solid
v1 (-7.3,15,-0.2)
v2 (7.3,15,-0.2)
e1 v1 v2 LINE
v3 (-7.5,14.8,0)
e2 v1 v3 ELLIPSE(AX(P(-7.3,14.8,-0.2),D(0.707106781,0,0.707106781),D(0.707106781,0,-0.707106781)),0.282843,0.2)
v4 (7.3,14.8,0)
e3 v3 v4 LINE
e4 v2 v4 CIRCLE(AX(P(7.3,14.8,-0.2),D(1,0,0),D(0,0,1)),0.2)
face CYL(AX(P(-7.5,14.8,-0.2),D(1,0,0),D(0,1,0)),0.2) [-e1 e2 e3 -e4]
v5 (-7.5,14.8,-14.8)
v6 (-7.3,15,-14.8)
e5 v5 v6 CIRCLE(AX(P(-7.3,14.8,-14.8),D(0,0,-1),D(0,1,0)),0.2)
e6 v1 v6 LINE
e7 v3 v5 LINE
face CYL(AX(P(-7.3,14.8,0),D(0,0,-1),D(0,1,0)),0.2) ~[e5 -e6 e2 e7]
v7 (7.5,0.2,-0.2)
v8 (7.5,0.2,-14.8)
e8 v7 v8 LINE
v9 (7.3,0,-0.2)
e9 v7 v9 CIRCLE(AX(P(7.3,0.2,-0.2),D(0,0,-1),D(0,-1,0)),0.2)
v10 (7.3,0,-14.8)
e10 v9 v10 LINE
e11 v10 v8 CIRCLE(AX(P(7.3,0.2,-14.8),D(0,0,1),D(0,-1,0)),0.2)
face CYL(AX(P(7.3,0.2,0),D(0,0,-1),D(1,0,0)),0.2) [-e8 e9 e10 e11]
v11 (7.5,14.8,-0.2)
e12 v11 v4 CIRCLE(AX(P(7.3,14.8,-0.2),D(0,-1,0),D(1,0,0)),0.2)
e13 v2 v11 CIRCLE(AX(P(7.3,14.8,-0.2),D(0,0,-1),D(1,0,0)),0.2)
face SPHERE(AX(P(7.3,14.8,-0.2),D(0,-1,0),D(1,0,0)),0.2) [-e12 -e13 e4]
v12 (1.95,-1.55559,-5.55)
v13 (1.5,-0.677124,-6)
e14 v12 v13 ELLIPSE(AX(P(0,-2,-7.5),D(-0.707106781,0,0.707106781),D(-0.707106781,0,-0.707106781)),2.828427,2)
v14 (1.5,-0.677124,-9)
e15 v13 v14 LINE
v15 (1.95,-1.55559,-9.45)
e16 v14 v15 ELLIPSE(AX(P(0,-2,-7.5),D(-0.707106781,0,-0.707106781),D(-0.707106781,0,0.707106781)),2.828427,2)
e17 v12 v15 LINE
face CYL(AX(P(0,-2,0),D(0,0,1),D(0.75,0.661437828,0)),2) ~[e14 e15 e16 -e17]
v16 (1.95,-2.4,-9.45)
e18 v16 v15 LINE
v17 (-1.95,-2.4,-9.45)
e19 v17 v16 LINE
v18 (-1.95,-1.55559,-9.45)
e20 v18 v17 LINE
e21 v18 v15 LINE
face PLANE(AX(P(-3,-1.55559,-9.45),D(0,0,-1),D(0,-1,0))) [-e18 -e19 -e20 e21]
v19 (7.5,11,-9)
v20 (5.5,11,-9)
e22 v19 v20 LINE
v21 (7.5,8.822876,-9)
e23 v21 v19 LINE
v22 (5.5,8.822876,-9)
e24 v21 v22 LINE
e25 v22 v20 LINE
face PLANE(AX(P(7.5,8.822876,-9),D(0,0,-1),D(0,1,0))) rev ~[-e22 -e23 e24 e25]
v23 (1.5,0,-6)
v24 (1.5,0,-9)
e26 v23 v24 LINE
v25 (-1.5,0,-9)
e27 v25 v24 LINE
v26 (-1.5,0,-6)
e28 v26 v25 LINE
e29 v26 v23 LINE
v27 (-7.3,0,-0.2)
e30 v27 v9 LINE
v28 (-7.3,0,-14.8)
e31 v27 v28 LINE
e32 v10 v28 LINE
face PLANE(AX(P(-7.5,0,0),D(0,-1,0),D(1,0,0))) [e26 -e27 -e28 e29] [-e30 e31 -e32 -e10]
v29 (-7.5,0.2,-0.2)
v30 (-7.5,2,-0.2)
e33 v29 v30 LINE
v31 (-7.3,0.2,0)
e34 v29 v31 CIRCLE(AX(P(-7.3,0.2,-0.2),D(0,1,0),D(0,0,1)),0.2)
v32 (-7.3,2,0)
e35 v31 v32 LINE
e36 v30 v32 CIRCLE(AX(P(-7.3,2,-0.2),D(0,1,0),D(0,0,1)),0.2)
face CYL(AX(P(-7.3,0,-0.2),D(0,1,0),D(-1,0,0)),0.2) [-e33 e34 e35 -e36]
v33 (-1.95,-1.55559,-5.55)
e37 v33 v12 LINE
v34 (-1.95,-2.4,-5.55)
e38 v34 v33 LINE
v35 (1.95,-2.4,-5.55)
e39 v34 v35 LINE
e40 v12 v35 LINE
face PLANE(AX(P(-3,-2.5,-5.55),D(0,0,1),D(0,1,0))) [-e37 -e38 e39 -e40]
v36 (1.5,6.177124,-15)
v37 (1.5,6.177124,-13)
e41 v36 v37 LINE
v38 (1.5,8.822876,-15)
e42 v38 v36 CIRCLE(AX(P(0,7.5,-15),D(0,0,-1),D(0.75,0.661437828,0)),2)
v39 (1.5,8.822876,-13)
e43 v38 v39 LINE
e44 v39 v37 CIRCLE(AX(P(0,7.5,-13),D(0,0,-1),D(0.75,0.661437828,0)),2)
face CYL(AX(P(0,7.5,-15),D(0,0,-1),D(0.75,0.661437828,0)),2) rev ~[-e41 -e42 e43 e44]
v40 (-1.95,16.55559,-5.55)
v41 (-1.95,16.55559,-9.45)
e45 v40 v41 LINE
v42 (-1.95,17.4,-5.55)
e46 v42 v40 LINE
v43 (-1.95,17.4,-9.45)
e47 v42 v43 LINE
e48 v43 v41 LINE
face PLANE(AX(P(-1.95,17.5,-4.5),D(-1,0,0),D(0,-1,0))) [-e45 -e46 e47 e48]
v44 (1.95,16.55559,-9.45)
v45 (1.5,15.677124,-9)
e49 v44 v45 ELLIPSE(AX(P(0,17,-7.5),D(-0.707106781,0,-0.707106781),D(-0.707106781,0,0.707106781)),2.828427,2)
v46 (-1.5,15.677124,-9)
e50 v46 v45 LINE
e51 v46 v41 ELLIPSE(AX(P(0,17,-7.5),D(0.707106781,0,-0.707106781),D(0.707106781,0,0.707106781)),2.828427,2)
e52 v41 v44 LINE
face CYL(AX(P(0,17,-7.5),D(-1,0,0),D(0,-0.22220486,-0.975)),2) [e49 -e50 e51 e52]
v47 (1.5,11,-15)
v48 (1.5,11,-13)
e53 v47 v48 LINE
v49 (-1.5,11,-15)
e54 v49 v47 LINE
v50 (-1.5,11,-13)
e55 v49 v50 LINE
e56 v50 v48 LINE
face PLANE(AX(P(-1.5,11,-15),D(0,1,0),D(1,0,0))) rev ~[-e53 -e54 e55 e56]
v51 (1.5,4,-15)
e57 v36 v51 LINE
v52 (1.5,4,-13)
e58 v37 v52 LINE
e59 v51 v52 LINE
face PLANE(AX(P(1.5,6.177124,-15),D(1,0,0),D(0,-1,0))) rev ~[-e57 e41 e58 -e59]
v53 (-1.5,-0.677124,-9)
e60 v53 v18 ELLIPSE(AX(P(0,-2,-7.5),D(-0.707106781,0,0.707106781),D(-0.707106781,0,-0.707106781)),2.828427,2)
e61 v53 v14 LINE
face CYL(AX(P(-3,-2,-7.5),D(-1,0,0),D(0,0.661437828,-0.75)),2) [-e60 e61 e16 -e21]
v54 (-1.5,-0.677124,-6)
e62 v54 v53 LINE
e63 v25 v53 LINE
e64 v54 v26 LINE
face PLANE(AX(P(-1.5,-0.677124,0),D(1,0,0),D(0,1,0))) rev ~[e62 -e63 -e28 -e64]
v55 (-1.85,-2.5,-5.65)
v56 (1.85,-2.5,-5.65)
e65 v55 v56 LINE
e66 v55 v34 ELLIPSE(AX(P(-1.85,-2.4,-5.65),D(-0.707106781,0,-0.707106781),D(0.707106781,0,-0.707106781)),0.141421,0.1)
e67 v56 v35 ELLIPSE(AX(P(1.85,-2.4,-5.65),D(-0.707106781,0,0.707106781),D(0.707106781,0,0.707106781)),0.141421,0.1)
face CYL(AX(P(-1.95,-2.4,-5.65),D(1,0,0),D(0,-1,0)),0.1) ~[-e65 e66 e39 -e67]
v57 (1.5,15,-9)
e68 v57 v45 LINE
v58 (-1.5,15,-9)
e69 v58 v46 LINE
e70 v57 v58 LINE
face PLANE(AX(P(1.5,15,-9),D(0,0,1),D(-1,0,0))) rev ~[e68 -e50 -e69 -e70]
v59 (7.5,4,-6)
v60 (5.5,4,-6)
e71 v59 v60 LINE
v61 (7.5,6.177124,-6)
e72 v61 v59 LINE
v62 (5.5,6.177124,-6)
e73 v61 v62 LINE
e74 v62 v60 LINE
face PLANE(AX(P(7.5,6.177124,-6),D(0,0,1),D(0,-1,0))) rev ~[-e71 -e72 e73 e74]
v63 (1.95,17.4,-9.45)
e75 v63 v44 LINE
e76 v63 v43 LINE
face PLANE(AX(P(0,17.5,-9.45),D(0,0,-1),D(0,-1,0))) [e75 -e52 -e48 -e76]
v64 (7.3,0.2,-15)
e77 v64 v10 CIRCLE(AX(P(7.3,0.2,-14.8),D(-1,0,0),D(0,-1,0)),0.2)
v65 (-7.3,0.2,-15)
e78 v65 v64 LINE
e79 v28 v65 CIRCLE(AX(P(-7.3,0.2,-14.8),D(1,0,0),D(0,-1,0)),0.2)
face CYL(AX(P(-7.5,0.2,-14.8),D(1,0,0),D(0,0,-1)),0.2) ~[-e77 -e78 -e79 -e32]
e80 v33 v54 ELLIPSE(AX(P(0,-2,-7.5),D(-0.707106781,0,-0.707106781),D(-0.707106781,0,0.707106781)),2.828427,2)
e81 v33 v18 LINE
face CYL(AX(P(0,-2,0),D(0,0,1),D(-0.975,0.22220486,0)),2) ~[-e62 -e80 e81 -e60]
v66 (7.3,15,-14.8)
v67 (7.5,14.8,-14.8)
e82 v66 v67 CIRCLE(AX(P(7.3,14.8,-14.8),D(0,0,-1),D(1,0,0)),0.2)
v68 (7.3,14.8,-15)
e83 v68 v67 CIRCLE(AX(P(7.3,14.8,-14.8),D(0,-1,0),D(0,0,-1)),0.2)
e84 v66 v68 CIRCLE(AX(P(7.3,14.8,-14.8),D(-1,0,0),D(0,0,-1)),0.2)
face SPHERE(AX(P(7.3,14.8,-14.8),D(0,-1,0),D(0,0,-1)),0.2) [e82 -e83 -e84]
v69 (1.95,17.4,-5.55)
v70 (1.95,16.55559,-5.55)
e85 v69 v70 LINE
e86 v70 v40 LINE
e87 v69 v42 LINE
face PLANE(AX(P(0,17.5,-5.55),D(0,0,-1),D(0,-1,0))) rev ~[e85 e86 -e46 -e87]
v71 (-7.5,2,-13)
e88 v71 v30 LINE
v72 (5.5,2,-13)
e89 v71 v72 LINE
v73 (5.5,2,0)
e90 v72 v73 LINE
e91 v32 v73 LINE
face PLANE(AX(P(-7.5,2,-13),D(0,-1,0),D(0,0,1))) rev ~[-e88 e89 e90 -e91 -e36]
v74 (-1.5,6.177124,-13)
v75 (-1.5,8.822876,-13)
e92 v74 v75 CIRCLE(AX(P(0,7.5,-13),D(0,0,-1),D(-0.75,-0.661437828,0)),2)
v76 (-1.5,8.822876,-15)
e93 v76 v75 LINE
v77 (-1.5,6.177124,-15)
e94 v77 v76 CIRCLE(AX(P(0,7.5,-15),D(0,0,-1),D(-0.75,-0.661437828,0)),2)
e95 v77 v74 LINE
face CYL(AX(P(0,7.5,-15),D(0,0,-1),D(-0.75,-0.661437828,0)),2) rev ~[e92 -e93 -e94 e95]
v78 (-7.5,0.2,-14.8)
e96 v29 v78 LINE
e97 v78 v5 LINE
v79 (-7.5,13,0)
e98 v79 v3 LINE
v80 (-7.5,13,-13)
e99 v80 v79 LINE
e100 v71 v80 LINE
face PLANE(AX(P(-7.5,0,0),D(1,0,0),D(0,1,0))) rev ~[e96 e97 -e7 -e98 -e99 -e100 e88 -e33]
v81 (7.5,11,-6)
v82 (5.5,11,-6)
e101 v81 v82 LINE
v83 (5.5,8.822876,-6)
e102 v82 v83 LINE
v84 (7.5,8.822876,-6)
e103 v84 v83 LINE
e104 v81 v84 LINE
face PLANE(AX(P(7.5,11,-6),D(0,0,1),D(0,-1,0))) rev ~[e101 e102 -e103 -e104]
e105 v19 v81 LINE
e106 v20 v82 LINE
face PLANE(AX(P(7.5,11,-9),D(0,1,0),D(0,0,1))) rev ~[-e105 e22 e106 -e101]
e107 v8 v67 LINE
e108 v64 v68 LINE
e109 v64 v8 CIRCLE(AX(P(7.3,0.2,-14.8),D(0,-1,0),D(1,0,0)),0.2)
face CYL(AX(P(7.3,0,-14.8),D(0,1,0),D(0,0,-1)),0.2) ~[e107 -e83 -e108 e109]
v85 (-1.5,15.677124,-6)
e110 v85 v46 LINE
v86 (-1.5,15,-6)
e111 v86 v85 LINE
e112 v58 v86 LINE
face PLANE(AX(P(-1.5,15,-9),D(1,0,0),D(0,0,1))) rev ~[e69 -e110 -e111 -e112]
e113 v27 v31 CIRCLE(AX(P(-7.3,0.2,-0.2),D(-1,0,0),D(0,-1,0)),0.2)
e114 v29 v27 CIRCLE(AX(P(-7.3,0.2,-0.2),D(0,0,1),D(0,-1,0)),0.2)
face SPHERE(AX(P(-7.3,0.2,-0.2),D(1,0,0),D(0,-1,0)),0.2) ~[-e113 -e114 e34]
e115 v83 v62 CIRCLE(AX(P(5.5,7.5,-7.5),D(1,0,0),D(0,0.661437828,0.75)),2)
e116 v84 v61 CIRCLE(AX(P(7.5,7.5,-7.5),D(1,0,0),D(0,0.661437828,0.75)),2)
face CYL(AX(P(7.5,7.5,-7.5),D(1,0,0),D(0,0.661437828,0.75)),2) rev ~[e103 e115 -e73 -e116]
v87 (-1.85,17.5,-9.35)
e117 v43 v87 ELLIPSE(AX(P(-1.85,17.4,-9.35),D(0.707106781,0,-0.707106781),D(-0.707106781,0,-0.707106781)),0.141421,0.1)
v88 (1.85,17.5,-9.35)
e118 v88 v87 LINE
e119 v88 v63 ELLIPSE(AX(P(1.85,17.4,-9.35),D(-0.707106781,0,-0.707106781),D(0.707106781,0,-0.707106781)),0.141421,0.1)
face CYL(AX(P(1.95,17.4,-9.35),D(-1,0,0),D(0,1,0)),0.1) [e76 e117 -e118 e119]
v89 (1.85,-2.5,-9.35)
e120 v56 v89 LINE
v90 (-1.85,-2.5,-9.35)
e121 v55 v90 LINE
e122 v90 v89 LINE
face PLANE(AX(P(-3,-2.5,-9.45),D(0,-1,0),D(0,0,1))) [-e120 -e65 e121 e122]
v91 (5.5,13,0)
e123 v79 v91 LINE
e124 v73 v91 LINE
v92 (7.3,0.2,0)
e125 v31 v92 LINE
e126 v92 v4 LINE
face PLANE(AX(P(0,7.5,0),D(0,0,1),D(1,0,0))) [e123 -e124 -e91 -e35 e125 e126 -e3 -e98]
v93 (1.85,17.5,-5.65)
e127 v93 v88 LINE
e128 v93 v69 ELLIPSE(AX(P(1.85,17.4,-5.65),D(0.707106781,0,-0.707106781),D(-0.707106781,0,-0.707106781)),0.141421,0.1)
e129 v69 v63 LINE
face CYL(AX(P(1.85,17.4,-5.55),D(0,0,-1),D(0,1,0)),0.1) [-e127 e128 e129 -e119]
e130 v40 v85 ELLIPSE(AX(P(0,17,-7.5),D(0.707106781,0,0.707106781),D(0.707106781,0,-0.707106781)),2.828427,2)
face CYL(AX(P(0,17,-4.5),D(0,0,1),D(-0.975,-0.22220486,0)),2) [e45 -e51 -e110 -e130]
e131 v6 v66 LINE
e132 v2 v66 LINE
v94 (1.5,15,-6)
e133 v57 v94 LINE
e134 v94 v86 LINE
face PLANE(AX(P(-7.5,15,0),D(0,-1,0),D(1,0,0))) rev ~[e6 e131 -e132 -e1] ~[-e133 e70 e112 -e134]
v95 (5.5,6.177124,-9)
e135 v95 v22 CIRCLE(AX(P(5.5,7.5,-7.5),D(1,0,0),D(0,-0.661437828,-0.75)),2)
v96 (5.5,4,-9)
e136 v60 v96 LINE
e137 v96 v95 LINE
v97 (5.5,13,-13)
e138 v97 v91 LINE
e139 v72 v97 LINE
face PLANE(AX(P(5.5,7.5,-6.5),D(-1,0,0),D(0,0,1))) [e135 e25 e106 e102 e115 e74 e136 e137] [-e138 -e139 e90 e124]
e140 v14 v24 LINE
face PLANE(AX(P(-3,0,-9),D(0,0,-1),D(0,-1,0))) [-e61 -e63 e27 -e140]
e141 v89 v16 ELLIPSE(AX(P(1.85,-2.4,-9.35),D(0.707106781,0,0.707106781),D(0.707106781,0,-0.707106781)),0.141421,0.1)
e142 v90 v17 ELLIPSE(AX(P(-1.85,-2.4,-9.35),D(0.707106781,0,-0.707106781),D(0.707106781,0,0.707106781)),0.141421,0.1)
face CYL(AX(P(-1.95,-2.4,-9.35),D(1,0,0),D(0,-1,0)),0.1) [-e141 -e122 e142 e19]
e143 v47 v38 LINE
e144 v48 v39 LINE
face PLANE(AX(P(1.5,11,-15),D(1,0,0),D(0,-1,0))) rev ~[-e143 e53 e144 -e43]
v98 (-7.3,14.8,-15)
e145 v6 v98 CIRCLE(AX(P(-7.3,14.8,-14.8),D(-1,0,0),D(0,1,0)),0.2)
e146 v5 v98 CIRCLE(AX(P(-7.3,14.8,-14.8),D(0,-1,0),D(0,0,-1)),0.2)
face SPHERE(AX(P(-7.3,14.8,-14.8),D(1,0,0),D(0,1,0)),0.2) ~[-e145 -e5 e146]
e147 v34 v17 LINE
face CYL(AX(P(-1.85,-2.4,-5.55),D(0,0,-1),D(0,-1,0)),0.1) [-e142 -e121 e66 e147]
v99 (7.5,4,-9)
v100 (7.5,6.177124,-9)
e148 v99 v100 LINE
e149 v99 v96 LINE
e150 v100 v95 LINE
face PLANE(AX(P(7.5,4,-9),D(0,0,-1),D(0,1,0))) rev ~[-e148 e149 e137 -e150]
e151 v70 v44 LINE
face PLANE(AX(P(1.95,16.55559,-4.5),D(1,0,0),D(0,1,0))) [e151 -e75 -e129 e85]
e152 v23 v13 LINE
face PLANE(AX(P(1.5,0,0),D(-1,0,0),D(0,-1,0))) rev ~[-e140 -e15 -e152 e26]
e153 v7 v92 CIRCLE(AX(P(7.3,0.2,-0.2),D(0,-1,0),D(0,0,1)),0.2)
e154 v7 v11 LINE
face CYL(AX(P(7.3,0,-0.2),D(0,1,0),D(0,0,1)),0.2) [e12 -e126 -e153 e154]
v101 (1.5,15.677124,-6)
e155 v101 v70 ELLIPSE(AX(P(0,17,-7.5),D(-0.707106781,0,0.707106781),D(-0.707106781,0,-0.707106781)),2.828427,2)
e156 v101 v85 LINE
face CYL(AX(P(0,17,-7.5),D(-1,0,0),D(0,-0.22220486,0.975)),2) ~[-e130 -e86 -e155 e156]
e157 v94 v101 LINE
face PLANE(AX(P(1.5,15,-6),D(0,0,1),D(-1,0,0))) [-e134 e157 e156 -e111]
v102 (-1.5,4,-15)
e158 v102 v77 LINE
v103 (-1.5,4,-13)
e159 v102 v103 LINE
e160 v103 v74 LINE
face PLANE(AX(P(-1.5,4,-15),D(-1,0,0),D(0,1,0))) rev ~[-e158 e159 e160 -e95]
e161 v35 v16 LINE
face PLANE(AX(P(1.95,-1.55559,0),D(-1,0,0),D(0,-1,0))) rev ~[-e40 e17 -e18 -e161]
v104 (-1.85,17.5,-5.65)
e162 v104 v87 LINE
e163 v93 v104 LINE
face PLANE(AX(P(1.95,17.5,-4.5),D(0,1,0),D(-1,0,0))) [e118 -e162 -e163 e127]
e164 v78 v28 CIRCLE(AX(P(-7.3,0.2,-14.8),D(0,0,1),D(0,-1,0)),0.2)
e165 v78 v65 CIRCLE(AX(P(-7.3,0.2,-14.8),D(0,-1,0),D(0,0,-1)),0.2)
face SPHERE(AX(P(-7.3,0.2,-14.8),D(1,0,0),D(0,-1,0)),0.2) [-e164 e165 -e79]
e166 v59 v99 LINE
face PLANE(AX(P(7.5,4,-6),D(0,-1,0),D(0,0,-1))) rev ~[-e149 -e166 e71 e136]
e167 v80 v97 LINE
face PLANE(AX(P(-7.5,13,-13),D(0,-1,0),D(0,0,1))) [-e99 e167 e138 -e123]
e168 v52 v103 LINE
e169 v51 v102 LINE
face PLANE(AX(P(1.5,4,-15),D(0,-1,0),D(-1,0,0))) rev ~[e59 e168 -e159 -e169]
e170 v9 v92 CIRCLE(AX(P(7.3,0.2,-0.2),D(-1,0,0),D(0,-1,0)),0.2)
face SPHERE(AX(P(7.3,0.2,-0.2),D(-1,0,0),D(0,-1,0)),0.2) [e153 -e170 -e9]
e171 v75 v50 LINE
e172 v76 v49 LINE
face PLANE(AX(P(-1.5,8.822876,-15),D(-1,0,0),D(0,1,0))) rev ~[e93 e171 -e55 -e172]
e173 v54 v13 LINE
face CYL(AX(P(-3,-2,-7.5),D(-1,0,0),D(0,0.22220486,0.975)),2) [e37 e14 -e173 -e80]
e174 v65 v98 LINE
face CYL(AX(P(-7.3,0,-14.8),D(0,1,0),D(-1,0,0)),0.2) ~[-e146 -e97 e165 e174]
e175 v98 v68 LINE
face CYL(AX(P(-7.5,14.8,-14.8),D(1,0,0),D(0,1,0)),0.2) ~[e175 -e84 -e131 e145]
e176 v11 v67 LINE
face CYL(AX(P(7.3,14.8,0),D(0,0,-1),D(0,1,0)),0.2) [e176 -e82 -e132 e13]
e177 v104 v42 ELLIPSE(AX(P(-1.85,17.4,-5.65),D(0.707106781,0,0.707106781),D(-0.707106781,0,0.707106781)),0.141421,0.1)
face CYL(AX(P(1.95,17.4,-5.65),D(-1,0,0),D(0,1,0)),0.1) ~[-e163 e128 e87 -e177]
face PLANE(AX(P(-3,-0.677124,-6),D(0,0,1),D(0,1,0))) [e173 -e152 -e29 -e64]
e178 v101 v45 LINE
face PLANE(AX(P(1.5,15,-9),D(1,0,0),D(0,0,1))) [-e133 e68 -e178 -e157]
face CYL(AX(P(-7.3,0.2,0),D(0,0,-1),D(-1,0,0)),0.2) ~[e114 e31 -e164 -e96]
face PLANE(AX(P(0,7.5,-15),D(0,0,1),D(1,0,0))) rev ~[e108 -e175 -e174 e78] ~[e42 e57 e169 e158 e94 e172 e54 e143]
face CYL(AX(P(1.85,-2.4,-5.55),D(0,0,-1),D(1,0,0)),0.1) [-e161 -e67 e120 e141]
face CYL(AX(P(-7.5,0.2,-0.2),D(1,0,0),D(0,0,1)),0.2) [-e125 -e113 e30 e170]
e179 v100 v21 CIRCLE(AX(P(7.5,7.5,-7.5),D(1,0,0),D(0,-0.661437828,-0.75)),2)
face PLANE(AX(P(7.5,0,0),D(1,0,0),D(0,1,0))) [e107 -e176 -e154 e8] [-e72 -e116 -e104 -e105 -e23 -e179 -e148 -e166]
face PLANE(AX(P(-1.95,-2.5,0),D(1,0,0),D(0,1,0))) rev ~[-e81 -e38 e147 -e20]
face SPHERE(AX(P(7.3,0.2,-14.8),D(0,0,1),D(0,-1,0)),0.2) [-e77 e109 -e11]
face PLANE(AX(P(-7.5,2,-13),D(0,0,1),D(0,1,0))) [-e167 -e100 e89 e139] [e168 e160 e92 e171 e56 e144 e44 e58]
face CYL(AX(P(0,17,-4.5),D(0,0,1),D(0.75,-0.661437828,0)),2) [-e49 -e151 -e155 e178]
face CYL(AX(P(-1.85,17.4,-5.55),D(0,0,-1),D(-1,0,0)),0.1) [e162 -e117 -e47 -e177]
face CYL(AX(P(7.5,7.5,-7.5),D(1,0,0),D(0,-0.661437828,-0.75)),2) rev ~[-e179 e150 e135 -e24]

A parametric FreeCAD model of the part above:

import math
import FreeCAD as App
import Part
import Sketcher

V = App.Vector


def edges_at(feature, points):
    """Names of the edges that pass closest to the given points."""
    edges = feature.Shape.Edges
    near = lambda p: min(range(len(edges)), key=lambda i: edges[i].distToShape(Part.Vertex(*p))[0])
    return sorted({f"Edge{near(p) + 1}" for p in points})


def add_polygon(sketch, points):
    """Adds a closed chain of lines whose ends are joined by coincident constraints."""
    first, n = sketch.GeometryCount, len(points)
    for a, b in zip(points, points[1:] + points[:1]):
        sketch.addGeometry(Part.LineSegment(App.Vector(*a, 0), App.Vector(*b, 0)), False)
    for i in range(n):
        sketch.addConstraint(Sketcher.Constraint("Coincident", first + i, 2, first + (i + 1) % n, 1))

doc = App.newDocument("Part")
body = doc.addObject("PartDesign::Body", "Body")

sketch1 = doc.addObject("Sketcher::SketchObject", "Sketch")
body.addObject(sketch1)
sketch1.AttachmentSupport = (doc.XY_Plane, [""])
sketch1.MapMode = "FlatFace"
add_polygon(sketch1, [(-8, 15), (-8, 0), (8, 0), (8, 15)])
sketch1.addConstraint(Sketcher.Constraint("Vertical", 0))
sketch1.addConstraint(Sketcher.Constraint("Horizontal", 1))
sketch1.addConstraint(Sketcher.Constraint("Vertical", 2))
sketch1.addConstraint(Sketcher.Constraint("Horizontal", 3))
sketch1.addConstraint(Sketcher.Constraint("Symmetric", 0, 2, 1, 2, -1, 1))
sketch1.addConstraint(Sketcher.Constraint("Equal", 3, 0))
sketch1.addConstraint(Sketcher.Constraint("DistanceX", 1, 1, 1, 2, 15.0))
pad1 = doc.addObject("PartDesign::Pad", "Pad")
body.addObject(pad1)
pad1.Profile = sketch1
pad1.Length = 15
pad1.Reversed = True

sketch2 = doc.addObject("Sketcher::SketchObject", "Sketch001")
body.addObject(sketch2)
sketch2.AttachmentSupport = (doc.YZ_Plane, [""])
sketch2.MapMode = "FlatFace"
sketch2.AttachmentOffset = App.Placement(V(0, 0, -7.5), App.Rotation())
add_polygon(sketch2, [(13, -13), (2, -13), (2, 0), (13, 0)])
sketch2.addConstraint(Sketcher.Constraint("Horizontal", 0))
sketch2.addConstraint(Sketcher.Constraint("Vertical", 1))
sketch2.addConstraint(Sketcher.Constraint("Horizontal", 2))
sketch2.addConstraint(Sketcher.Constraint("Vertical", 3))
sketch2.addConstraint(Sketcher.Constraint("PointOnObject", 1, 2, -1))
sketch2.addConstraint(Sketcher.Constraint("DistanceX", 0, 2, 0, 1, 11.0))
sketch2.addConstraint(Sketcher.Constraint("DistanceY", 1, 1, 1, 2, 13.0))
sketch2.addConstraint(Sketcher.Constraint("DistanceX", -1, 1, 0, 2, 2.0))
pocket1 = doc.addObject("PartDesign::Pocket", "Pocket")
body.addObject(pocket1)
pocket1.Profile = sketch2
pocket1.Length = 13
pocket1.Reversed = True
body2 = doc.addObject("PartDesign::Body", "Body001")

sketch3 = doc.addObject("Sketcher::SketchObject", "Sketch002")
body2.addObject(sketch3)
sketch3.AttachmentSupport = (doc.getObject("XY_Plane001"), [""])
sketch3.MapMode = "FlatFace"
sketch3.AttachmentOffset = App.Placement(V(0, 0, -4.5), App.Rotation())
sketch3.addGeometry(Part.LineSegment(V(-1.5, 15.7, 0), V(1.5, 15.7, 0)), False)
sketch3.addGeometry(Part.ArcOfCircle(Part.Circle(V(0, 17, 0), V(0, 0, 1), 2), math.radians(-41), math.radians(-13)), False)
sketch3.addGeometry(Part.LineSegment(V(1.9, 16.6, 0), V(1.9, 17.5, 0)), False)
sketch3.addGeometry(Part.LineSegment(V(1.9, 17.5, 0), V(-1.9, 17.5, 0)), False)
sketch3.addGeometry(Part.LineSegment(V(-1.9, 17.5, 0), V(-1.9, 16.6, 0)), False)
sketch3.addGeometry(Part.ArcOfCircle(Part.Circle(V(0, 17, 0), V(0, 0, 1), 2), math.radians(-167), math.radians(-139)), False)
sketch3.addConstraint(Sketcher.Constraint("Coincident", 0, 2, 1, 1))
sketch3.addConstraint(Sketcher.Constraint("Coincident", 1, 2, 2, 1))
sketch3.addConstraint(Sketcher.Constraint("Coincident", 2, 2, 3, 1))
sketch3.addConstraint(Sketcher.Constraint("Coincident", 3, 2, 4, 1))
sketch3.addConstraint(Sketcher.Constraint("Coincident", 4, 2, 5, 1))
sketch3.addConstraint(Sketcher.Constraint("Coincident", 5, 2, 0, 1))
sketch3.addConstraint(Sketcher.Constraint("Horizontal", 0))
sketch3.addConstraint(Sketcher.Constraint("Vertical", 2))
sketch3.addConstraint(Sketcher.Constraint("Horizontal", 3))
sketch3.addConstraint(Sketcher.Constraint("Vertical", 4))
sketch3.addConstraint(Sketcher.Constraint("Coincident", 5, 3, 1, 3))
sketch3.addConstraint(Sketcher.Constraint("Equal", 1, 5))
sketch3.addConstraint(Sketcher.Constraint("Symmetric", 1, 2, 4, 2, -2))
sketch3.addConstraint(Sketcher.Constraint("Radius", 1, 2.0))
sketch3.addConstraint(Sketcher.Constraint("DistanceX", 0, 1, 0, 2, 3.0))
sketch3.addConstraint(Sketcher.Constraint("DistanceX", 3, 2, 3, 1, 3.9))
sketch3.addConstraint(Sketcher.Constraint("DistanceY", -1, 1, 1, 3, 17.0))
sketch3.addConstraint(Sketcher.Constraint("DistanceY", -1, 1, 2, 2, 17.5))
pad2 = doc.addObject("PartDesign::Pad", "Pad001")
body2.addObject(pad2)
pad2.Profile = sketch3
pad2.Length = 6
pad2.Reversed = True
body.AllowCompound = True
doc.recompute()

boolean = doc.addObject("PartDesign::Boolean", "Boolean")
body.addObject(boolean)
boolean.Type = "Fuse"
boolean.addObjects([body2])

sketch4 = doc.addObject("Sketcher::SketchObject", "Sketch003")
body.addObject(sketch4)
sketch4.AttachmentSupport = (doc.XZ_Plane, [""])
sketch4.MapMode = "FlatFace"
sketch4.AttachmentOffset = App.Placement(V(0, 0, -15), App.Rotation())
add_polygon(sketch4, [(1.5, -6), (1.5, -9), (-1.5, -9), (-1.5, -6)])
sketch4.addConstraint(Sketcher.Constraint("Vertical", 0))
sketch4.addConstraint(Sketcher.Constraint("Horizontal", 1))
sketch4.addConstraint(Sketcher.Constraint("Vertical", 2))
sketch4.addConstraint(Sketcher.Constraint("Horizontal", 3))
sketch4.addConstraint(Sketcher.Constraint("Equal", 3, 0))
sketch4.addConstraint(Sketcher.Constraint("DistanceX", 1, 2, 1, 1, 3.0))
sketch4.addConstraint(Sketcher.Constraint("DistanceY", 0, 2, -1, 1, 9.0))
sketch4.addConstraint(Sketcher.Constraint("DistanceX", -1, 1, 0, 2, 1.5))
pad3 = doc.addObject("PartDesign::Pad", "Pad002")
body.addObject(pad3)
pad3.Profile = sketch4
pad3.Length = 1
pad3.Reversed = True

sketch5 = doc.addObject("Sketcher::SketchObject", "Sketch004")
body.addObject(sketch5)
sketch5.AttachmentSupport = (doc.XY_Plane, [""])
sketch5.MapMode = "FlatFace"
sketch5.AttachmentOffset = App.Placement(V(0, 0, -15), App.Rotation())
sketch5.addGeometry(Part.LineSegment(V(1.5, 6.2, 0), V(1.5, 4, 0)), False)
sketch5.addGeometry(Part.LineSegment(V(1.5, 4, 0), V(-1.5, 4, 0)), False)
sketch5.addGeometry(Part.LineSegment(V(-1.5, 4, 0), V(-1.5, 6.2, 0)), False)
sketch5.addGeometry(Part.ArcOfCircle(Part.Circle(V(0, 7.5, 0), V(0, 0, 1), 2), math.radians(139), math.radians(221)), False)
sketch5.addGeometry(Part.LineSegment(V(-1.5, 8.8, 0), V(-1.5, 11, 0)), False)
sketch5.addGeometry(Part.LineSegment(V(-1.5, 11, 0), V(1.5, 11, 0)), False)
sketch5.addGeometry(Part.LineSegment(V(1.5, 11, 0), V(1.5, 8.8, 0)), False)
sketch5.addGeometry(Part.ArcOfCircle(Part.Circle(V(0, 7.5, 0), V(0, 0, 1), 2), math.radians(-41), math.radians(41)), False)
sketch5.addConstraint(Sketcher.Constraint("Coincident", 0, 2, 1, 1))
sketch5.addConstraint(Sketcher.Constraint("Coincident", 1, 2, 2, 1))
sketch5.addConstraint(Sketcher.Constraint("Coincident", 2, 2, 3, 2))
sketch5.addConstraint(Sketcher.Constraint("Coincident", 3, 1, 4, 1))
sketch5.addConstraint(Sketcher.Constraint("Coincident", 4, 2, 5, 1))
sketch5.addConstraint(Sketcher.Constraint("Coincident", 5, 2, 6, 1))
sketch5.addConstraint(Sketcher.Constraint("Coincident", 6, 2, 7, 2))
sketch5.addConstraint(Sketcher.Constraint("Coincident", 7, 1, 0, 1))
sketch5.addConstraint(Sketcher.Constraint("Vertical", 0))
sketch5.addConstraint(Sketcher.Constraint("Horizontal", 1))
sketch5.addConstraint(Sketcher.Constraint("Vertical", 2))
sketch5.addConstraint(Sketcher.Constraint("Vertical", 4))
sketch5.addConstraint(Sketcher.Constraint("Horizontal", 5))
sketch5.addConstraint(Sketcher.Constraint("Vertical", 6))
sketch5.addConstraint(Sketcher.Constraint("Coincident", 7, 3, 3, 3))
sketch5.addConstraint(Sketcher.Constraint("Equal", 3, 7))
sketch5.addConstraint(Sketcher.Constraint("Symmetric", 3, 1, 6, 2, -2))
sketch5.addConstraint(Sketcher.Constraint("Horizontal", 2, 2, 7, 1))
sketch5.addConstraint(Sketcher.Constraint("Vertical", 2, 2, 3, 1))
sketch5.addConstraint(Sketcher.Constraint("Equal", 2, 4))
sketch5.addConstraint(Sketcher.Constraint("Radius", 3, 2.0))
sketch5.addConstraint(Sketcher.Constraint("DistanceX", 1, 2, 1, 1, 3.0))
sketch5.addConstraint(Sketcher.Constraint("DistanceY", -1, 1, 0, 2, 4.0))
sketch5.addConstraint(Sketcher.Constraint("DistanceY", -1, 1, 4, 2, 11.0))
pocket2 = doc.addObject("PartDesign::Pocket", "Pocket001")
body.addObject(pocket2)
pocket2.Profile = sketch5
pocket2.Type = "UpToFirst"
pocket2.Reversed = True

sketch6 = doc.addObject("Sketcher::SketchObject", "Sketch005")
body.addObject(sketch6)
sketch6.AttachmentSupport = (doc.YZ_Plane, [""])
sketch6.MapMode = "FlatFace"
sketch6.AttachmentOffset = App.Placement(V(0, 0, 7.5), App.Rotation())
sketch6.addGeometry(Part.LineSegment(V(6.2, -6, 0), V(4, -6, 0)), False)
sketch6.addGeometry(Part.LineSegment(V(4, -6, 0), V(4, -9, 0)), False)
sketch6.addGeometry(Part.LineSegment(V(4, -9, 0), V(6.2, -9, 0)), False)
sketch6.addGeometry(Part.ArcOfCircle(Part.Circle(V(7.5, -7.5, 0), V(0, 0, 1), 2), math.radians(-131), math.radians(-49)), False)
sketch6.addGeometry(Part.LineSegment(V(8.8, -9, 0), V(11, -9, 0)), False)
sketch6.addGeometry(Part.LineSegment(V(11, -9, 0), V(11, -6, 0)), False)
sketch6.addGeometry(Part.LineSegment(V(11, -6, 0), V(8.8, -6, 0)), False)
sketch6.addGeometry(Part.ArcOfCircle(Part.Circle(V(7.5, -7.5, 0), V(0, 0, 1), 2), math.radians(49), math.radians(131)), False)
sketch6.addConstraint(Sketcher.Constraint("Coincident", 0, 2, 1, 1))
sketch6.addConstraint(Sketcher.Constraint("Coincident", 1, 2, 2, 1))
sketch6.addConstraint(Sketcher.Constraint("Coincident", 2, 2, 3, 1))
sketch6.addConstraint(Sketcher.Constraint("Coincident", 3, 2, 4, 1))
sketch6.addConstraint(Sketcher.Constraint("Coincident", 4, 2, 5, 1))
sketch6.addConstraint(Sketcher.Constraint("Coincident", 5, 2, 6, 1))
sketch6.addConstraint(Sketcher.Constraint("Coincident", 6, 2, 7, 1))
sketch6.addConstraint(Sketcher.Constraint("Coincident", 7, 2, 0, 1))
sketch6.addConstraint(Sketcher.Constraint("Horizontal", 0))
sketch6.addConstraint(Sketcher.Constraint("Vertical", 1))
sketch6.addConstraint(Sketcher.Constraint("Horizontal", 2))
sketch6.addConstraint(Sketcher.Constraint("Horizontal", 4))
sketch6.addConstraint(Sketcher.Constraint("Vertical", 5))
sketch6.addConstraint(Sketcher.Constraint("Horizontal", 6))
sketch6.addConstraint(Sketcher.Constraint("Coincident", 7, 3, 3, 3))
sketch6.addConstraint(Sketcher.Constraint("Equal", 3, 7))
sketch6.addConstraint(Sketcher.Constraint("Horizontal", 2, 2, 3, 2))
sketch6.addConstraint(Sketcher.Constraint("Horizontal", 0, 2, 5, 2))
sketch6.addConstraint(Sketcher.Constraint("Vertical", 3, 2, 6, 2))
sketch6.addConstraint(Sketcher.Constraint("Equal", 2, 4))
sketch6.addConstraint(Sketcher.Constraint("Radius", 3, 2.0))
sketch6.addConstraint(Sketcher.Constraint("DistanceY", 1, 2, 1, 1, 3.0))
sketch6.addConstraint(Sketcher.Constraint("DistanceX", -1, 1, 0, 2, 4.0))
sketch6.addConstraint(Sketcher.Constraint("DistanceY", 0, 2, -1, 1, 6.0))
sketch6.addConstraint(Sketcher.Constraint("DistanceX", -1, 1, 4, 2, 11.0))
pocket3 = doc.addObject("PartDesign::Pocket", "Pocket002")
body.addObject(pocket3)
pocket3.Profile = sketch6
pocket3.Type = "UpToFirst"

sketch7 = doc.addObject("Sketcher::SketchObject", "Sketch006")
body.addObject(sketch7)
sketch7.AttachmentSupport = (doc.YZ_Plane, [""])
sketch7.MapMode = "FlatFace"
sketch7.addGeometry(Part.LineSegment(V(16.6, -5.5, 0), V(17.5, -5.5, 0)), False)
sketch7.addGeometry(Part.LineSegment(V(17.5, -5.5, 0), V(17.5, -4.5, 0)), False)
sketch7.addGeometry(Part.LineSegment(V(17.5, -4.5, 0), V(15.7, -4.5, 0)), False)
sketch7.addGeometry(Part.LineSegment(V(15.7, -4.5, 0), V(15.7, -6, 0)), False)
sketch7.addGeometry(Part.ArcOfCircle(Part.Circle(V(17, -7.5, 0), V(0, 0, 1), 2), math.radians(103), math.radians(131)), False)
sketch7.addConstraint(Sketcher.Constraint("Coincident", 0, 2, 1, 1))
sketch7.addConstraint(Sketcher.Constraint("Coincident", 1, 2, 2, 1))
sketch7.addConstraint(Sketcher.Constraint("Coincident", 2, 2, 3, 1))
sketch7.addConstraint(Sketcher.Constraint("Coincident", 3, 2, 4, 2))
sketch7.addConstraint(Sketcher.Constraint("Coincident", 4, 1, 0, 1))
sketch7.addConstraint(Sketcher.Constraint("Horizontal", 0))
sketch7.addConstraint(Sketcher.Constraint("Vertical", 1))
sketch7.addConstraint(Sketcher.Constraint("Horizontal", 2))
sketch7.addConstraint(Sketcher.Constraint("Vertical", 3))
sketch7.addConstraint(Sketcher.Constraint("Radius", 4, 2.0))
sketch7.addConstraint(Sketcher.Constraint("DistanceY", 3, 2, 3, 1, 1.5))
sketch7.addConstraint(Sketcher.Constraint("DistanceX", -1, 1, 4, 3, 17.0))
sketch7.addConstraint(Sketcher.Constraint("DistanceY", 3, 2, -1, 1, 6.0))
sketch7.addConstraint(Sketcher.Constraint("DistanceY", 4, 3, 1, 2, 3.0))
sketch7.addConstraint(Sketcher.Constraint("DistanceY", 1, 1, 1, 2, 1.05))
sketch7.addConstraint(Sketcher.Constraint("DistanceX", -1, 1, 0, 2, 17.5))
pocket4 = doc.addObject("PartDesign::Pocket", "Pocket003")
body.addObject(pocket4)
pocket4.Profile = sketch7
pocket4.Type = "UpToFirst"

sketch8 = doc.addObject("Sketcher::SketchObject", "Sketch007")
body.addObject(sketch8)
sketch8.AttachmentSupport = (doc.YZ_Plane, [""])
sketch8.MapMode = "FlatFace"
sketch8.addGeometry(Part.LineSegment(V(17.5, -10.5, 0), V(17.5, -9.4, 0)), False)
sketch8.addGeometry(Part.LineSegment(V(17.5, -9.4, 0), V(16.6, -9.4, 0)), False)
sketch8.addGeometry(Part.ArcOfCircle(Part.Circle(V(17, -7.5, 0), V(0, 0, 1), 2), math.radians(-131), math.radians(-103)), False)
sketch8.addGeometry(Part.LineSegment(V(15.7, -9, 0), V(15.7, -10.5, 0)), False)
sketch8.addGeometry(Part.LineSegment(V(15.7, -10.5, 0), V(17.5, -10.5, 0)), False)
sketch8.addConstraint(Sketcher.Constraint("Coincident", 0, 2, 1, 1))
sketch8.addConstraint(Sketcher.Constraint("Coincident", 1, 2, 2, 2))
sketch8.addConstraint(Sketcher.Constraint("Coincident", 2, 1, 3, 1))
sketch8.addConstraint(Sketcher.Constraint("Coincident", 3, 2, 4, 1))
sketch8.addConstraint(Sketcher.Constraint("Coincident", 4, 2, 0, 1))
sketch8.addConstraint(Sketcher.Constraint("Vertical", 0))
sketch8.addConstraint(Sketcher.Constraint("Horizontal", 1))
sketch8.addConstraint(Sketcher.Constraint("Vertical", 3))
sketch8.addConstraint(Sketcher.Constraint("Horizontal", 4))
sketch8.addConstraint(Sketcher.Constraint("Radius", 2, 2.0))
sketch8.addConstraint(Sketcher.Constraint("DistanceY", 3, 2, 3, 1, 1.5))
sketch8.addConstraint(Sketcher.Constraint("DistanceX", -1, 1, 2, 3, 17.0))
sketch8.addConstraint(Sketcher.Constraint("DistanceY", 2, 1, -1, 1, 9.0))
sketch8.addConstraint(Sketcher.Constraint("DistanceY", 3, 2, 2, 3, 3.0))
sketch8.addConstraint(Sketcher.Constraint("DistanceY", 0, 1, 0, 2, 1.05))
sketch8.addConstraint(Sketcher.Constraint("DistanceX", -1, 1, 0, 2, 17.5))
pocket5 = doc.addObject("PartDesign::Pocket", "Pocket004")
body.addObject(pocket5)
pocket5.Profile = sketch8
pocket5.Type = "UpToFirst"

sketch9 = doc.addObject("Sketcher::SketchObject", "Sketch008")
body.addObject(sketch9)
sketch9.AttachmentSupport = (doc.YZ_Plane, [""])
sketch9.MapMode = "FlatFace"
sketch9.addGeometry(Part.LineSegment(V(16.6, -5.5, 0), V(17.5, -5.5, 0)), False)
sketch9.addGeometry(Part.LineSegment(V(17.5, -5.5, 0), V(17.5, -4.5, 0)), False)
sketch9.addGeometry(Part.LineSegment(V(17.5, -4.5, 0), V(15.7, -4.5, 0)), False)
sketch9.addGeometry(Part.LineSegment(V(15.7, -4.5, 0), V(15.7, -6, 0)), False)
sketch9.addGeometry(Part.ArcOfCircle(Part.Circle(V(17, -7.5, 0), V(0, 0, 1), 2), math.radians(103), math.radians(131)), False)
sketch9.addConstraint(Sketcher.Constraint("Coincident", 0, 2, 1, 1))
sketch9.addConstraint(Sketcher.Constraint("Coincident", 1, 2, 2, 1))
sketch9.addConstraint(Sketcher.Constraint("Coincident", 2, 2, 3, 1))
sketch9.addConstraint(Sketcher.Constraint("Coincident", 3, 2, 4, 2))
sketch9.addConstraint(Sketcher.Constraint("Coincident", 4, 1, 0, 1))
sketch9.addConstraint(Sketcher.Constraint("Horizontal", 0))
sketch9.addConstraint(Sketcher.Constraint("Vertical", 1))
sketch9.addConstraint(Sketcher.Constraint("Horizontal", 2))
sketch9.addConstraint(Sketcher.Constraint("Vertical", 3))
sketch9.addConstraint(Sketcher.Constraint("Radius", 4, 2.0))
sketch9.addConstraint(Sketcher.Constraint("DistanceY", 3, 2, 3, 1, 1.5))
sketch9.addConstraint(Sketcher.Constraint("DistanceX", -1, 1, 4, 3, 17.0))
sketch9.addConstraint(Sketcher.Constraint("DistanceY", 3, 2, -1, 1, 6.0))
sketch9.addConstraint(Sketcher.Constraint("DistanceY", 4, 3, 1, 2, 3.0))
sketch9.addConstraint(Sketcher.Constraint("DistanceY", 1, 1, 1, 2, 1.05))
sketch9.addConstraint(Sketcher.Constraint("DistanceX", -1, 1, 0, 2, 17.5))
pocket6 = doc.addObject("PartDesign::Pocket", "Pocket005")
body.addObject(pocket6)
pocket6.Profile = sketch9
pocket6.Type = "UpToFirst"
pocket6.Reversed = True

sketch10 = doc.addObject("Sketcher::SketchObject", "Sketch009")
body.addObject(sketch10)
sketch10.AttachmentSupport = (doc.YZ_Plane, [""])
sketch10.MapMode = "FlatFace"
sketch10.addGeometry(Part.LineSegment(V(17.5, -10.5, 0), V(17.5, -9.4, 0)), False)
sketch10.addGeometry(Part.LineSegment(V(17.5, -9.4, 0), V(16.6, -9.4, 0)), False)
sketch10.addGeometry(Part.ArcOfCircle(Part.Circle(V(17, -7.5, 0), V(0, 0, 1), 2), math.radians(-131), math.radians(-103)), False)
sketch10.addGeometry(Part.LineSegment(V(15.7, -9, 0), V(15.7, -10.5, 0)), False)
sketch10.addGeometry(Part.LineSegment(V(15.7, -10.5, 0), V(17.5, -10.5, 0)), False)
sketch10.addConstraint(Sketcher.Constraint("Coincident", 0, 2, 1, 1))
sketch10.addConstraint(Sketcher.Constraint("Coincident", 1, 2, 2, 2))
sketch10.addConstraint(Sketcher.Constraint("Coincident", 2, 1, 3, 1))
sketch10.addConstraint(Sketcher.Constraint("Coincident", 3, 2, 4, 1))
sketch10.addConstraint(Sketcher.Constraint("Coincident", 4, 2, 0, 1))
sketch10.addConstraint(Sketcher.Constraint("Vertical", 0))
sketch10.addConstraint(Sketcher.Constraint("Horizontal", 1))
sketch10.addConstraint(Sketcher.Constraint("Vertical", 3))
sketch10.addConstraint(Sketcher.Constraint("Horizontal", 4))
sketch10.addConstraint(Sketcher.Constraint("Radius", 2, 2.0))
sketch10.addConstraint(Sketcher.Constraint("DistanceY", 3, 2, 3, 1, 1.5))
sketch10.addConstraint(Sketcher.Constraint("DistanceX", -1, 1, 2, 3, 17.0))
sketch10.addConstraint(Sketcher.Constraint("DistanceY", 2, 1, -1, 1, 9.0))
sketch10.addConstraint(Sketcher.Constraint("DistanceY", 3, 2, 2, 3, 3.0))
sketch10.addConstraint(Sketcher.Constraint("DistanceY", 0, 1, 0, 2, 1.05))
sketch10.addConstraint(Sketcher.Constraint("DistanceX", -1, 1, 0, 2, 17.5))
pocket7 = doc.addObject("PartDesign::Pocket", "Pocket006")
body.addObject(pocket7)
pocket7.Profile = sketch10
pocket7.Type = "UpToFirst"
pocket7.Reversed = True
doc.recompute()

fillet = doc.addObject("PartDesign::Fillet", "Fillet")
body.addObject(fillet)
fillet.Base = (pocket7, edges_at(pocket7, [
    (0, 17.5, -5.55),
    (1.95, 17.5, -7.5),
    (-1.95, 17.5, -7.5),
    (0, 17.5, -9.45),
]))
fillet.Radius = 0.1
doc.recompute()

fillet2 = doc.addObject("PartDesign::Fillet", "Fillet001")
body.addObject(fillet2)
fillet2.Base = (fillet, edges_at(fillet, [
    (0, 0, 0),
    (7.5, 0, -7.5),
    (0, 0, -15),
    (-7.5, 0, -7.5),
    (7.5, 7.5, -15),
    (0, 15, -15),
    (-7.5, 15, -7.5),
    (-7.5, 7.5, -15),
    (-7.5, 1, 0),
    (7.5, 7.5, 0),
    (7.5, 15, -7.5),
    (0, 15, 0),
]))
fillet2.Radius = 0.2

sketch11 = doc.addObject("Sketcher::SketchObject", "Sketch010")
body.addObject(sketch11)
sketch11.AttachmentSupport = (doc.YZ_Plane, [""])
sketch11.MapMode = "FlatFace"
sketch11.addGeometry(Part.LineSegment(V(0, -9, 0), V(0, -6, 0)), False)
sketch11.addGeometry(Part.LineSegment(V(0, -6, 0), V(-0.7, -6, 0)), False)
sketch11.addGeometry(Part.ArcOfCircle(Part.Circle(V(-2, -7.5, 0), V(0, 0, 1), 2), math.radians(49), math.radians(77)), False)
sketch11.addGeometry(Part.LineSegment(V(-1.6, -5.5, 0), V(-2.5, -5.5, 0)), False)
sketch11.addGeometry(Part.LineSegment(V(-2.5, -5.5, 0), V(-2.5, -9.4, 0)), False)
sketch11.addGeometry(Part.LineSegment(V(-2.5, -9.4, 0), V(-1.6, -9.4, 0)), False)
sketch11.addGeometry(Part.ArcOfCircle(Part.Circle(V(-2, -7.5, 0), V(0, 0, 1), 2), math.radians(-77), math.radians(-49)), False)
sketch11.addGeometry(Part.LineSegment(V(-0.7, -9, 0), V(0, -9, 0)), False)
sketch11.addConstraint(Sketcher.Constraint("Coincident", 0, 2, 1, 1))
sketch11.addConstraint(Sketcher.Constraint("Coincident", 1, 2, 2, 1))
sketch11.addConstraint(Sketcher.Constraint("Coincident", 2, 2, 3, 1))
sketch11.addConstraint(Sketcher.Constraint("Coincident", 3, 2, 4, 1))
sketch11.addConstraint(Sketcher.Constraint("Coincident", 4, 2, 5, 1))
sketch11.addConstraint(Sketcher.Constraint("Coincident", 5, 2, 6, 1))
sketch11.addConstraint(Sketcher.Constraint("Coincident", 6, 2, 7, 1))
sketch11.addConstraint(Sketcher.Constraint("Coincident", 7, 2, 0, 1))
sketch11.addConstraint(Sketcher.Constraint("Vertical", 0))
sketch11.addConstraint(Sketcher.Constraint("Horizontal", 1))
sketch11.addConstraint(Sketcher.Constraint("Horizontal", 3))
sketch11.addConstraint(Sketcher.Constraint("Vertical", 4))
sketch11.addConstraint(Sketcher.Constraint("Horizontal", 5))
sketch11.addConstraint(Sketcher.Constraint("Horizontal", 7))
sketch11.addConstraint(Sketcher.Constraint("Coincident", 6, 3, 2, 3))
sketch11.addConstraint(Sketcher.Constraint("Equal", 2, 6))
sketch11.addConstraint(Sketcher.Constraint("PointOnObject", 0, 2, -2))
sketch11.addConstraint(Sketcher.Constraint("Vertical", 2, 2, 5, 2))
sketch11.addConstraint(Sketcher.Constraint("Vertical", 1, 2, 6, 2))
sketch11.addConstraint(Sketcher.Constraint("Radius", 2, 2.0))
sketch11.addConstraint(Sketcher.Constraint("DistanceY", 0, 1, 0, 2, 3.0))
sketch11.addConstraint(Sketcher.Constraint("DistanceY", 4, 2, 4, 1, 3.9))
sketch11.addConstraint(Sketcher.Constraint("DistanceX", 2, 3, -1, 1, 2.0))
sketch11.addConstraint(Sketcher.Constraint("DistanceY", 0, 2, -1, 1, 6.0))
sketch11.addConstraint(Sketcher.Constraint("DistanceX", 3, 2, -1, 1, 2.5))
pad4 = doc.addObject("PartDesign::Pad", "Pad003")
body.addObject(pad4)
pad4.Profile = sketch11
pad4.Type = "TwoLengths"
pad4.Length = 3
pad4.Length2 = 3

sketch12 = doc.addObject("Sketcher::SketchObject", "Sketch011")
body.addObject(sketch12)
sketch12.AttachmentSupport = (doc.XY_Plane, [""])
sketch12.MapMode = "FlatFace"
sketch12.addGeometry(Part.LineSegment(V(-1.9, -2.5, 0), V(-1.9, -1.6, 0)), False)
sketch12.addGeometry(Part.ArcOfCircle(Part.Circle(V(0, -2, 0), V(0, 0, 1), 2), math.radians(139), math.radians(167)), False)
sketch12.addGeometry(Part.LineSegment(V(-1.5, -0.7, 0), V(-1.5, 0, 0)), False)
sketch12.addGeometry(Part.LineSegment(V(-1.5, 0, 0), V(-3, 0, 0)), False)
sketch12.addGeometry(Part.LineSegment(V(-3, 0, 0), V(-3, -2.5, 0)), False)
sketch12.addGeometry(Part.LineSegment(V(-3, -2.5, 0), V(-1.9, -2.5, 0)), False)
sketch12.addGeometry(Part.LineSegment(V(1.5, 0, 0), V(1.5, -0.7, 0)), False)
sketch12.addGeometry(Part.ArcOfCircle(Part.Circle(V(0, -2, 0), V(0, 0, 1), 2), math.radians(13), math.radians(41)), False)
sketch12.addGeometry(Part.LineSegment(V(1.9, -1.6, 0), V(1.9, -2.5, 0)), False)
sketch12.addGeometry(Part.LineSegment(V(1.9, -2.5, 0), V(3, -2.5, 0)), False)
sketch12.addGeometry(Part.LineSegment(V(3, -2.5, 0), V(3, 0, 0)), False)
sketch12.addGeometry(Part.LineSegment(V(3, 0, 0), V(1.5, 0, 0)), False)
sketch12.addConstraint(Sketcher.Constraint("Coincident", 0, 2, 1, 2))
sketch12.addConstraint(Sketcher.Constraint("Coincident", 1, 1, 2, 1))
sketch12.addConstraint(Sketcher.Constraint("Coincident", 2, 2, 3, 1))
sketch12.addConstraint(Sketcher.Constraint("Coincident", 3, 2, 4, 1))
sketch12.addConstraint(Sketcher.Constraint("Coincident", 4, 2, 5, 1))
sketch12.addConstraint(Sketcher.Constraint("Coincident", 5, 2, 0, 1))
sketch12.addConstraint(Sketcher.Constraint("Coincident", 6, 2, 7, 2))
sketch12.addConstraint(Sketcher.Constraint("Coincident", 7, 1, 8, 1))
sketch12.addConstraint(Sketcher.Constraint("Coincident", 8, 2, 9, 1))
sketch12.addConstraint(Sketcher.Constraint("Coincident", 9, 2, 10, 1))
sketch12.addConstraint(Sketcher.Constraint("Coincident", 10, 2, 11, 1))
sketch12.addConstraint(Sketcher.Constraint("Coincident", 11, 2, 6, 1))
sketch12.addConstraint(Sketcher.Constraint("Vertical", 0))
sketch12.addConstraint(Sketcher.Constraint("Vertical", 2))
sketch12.addConstraint(Sketcher.Constraint("Horizontal", 3))
sketch12.addConstraint(Sketcher.Constraint("Vertical", 4))
sketch12.addConstraint(Sketcher.Constraint("Horizontal", 5))
sketch12.addConstraint(Sketcher.Constraint("Vertical", 6))
sketch12.addConstraint(Sketcher.Constraint("Vertical", 8))
sketch12.addConstraint(Sketcher.Constraint("Horizontal", 9))
sketch12.addConstraint(Sketcher.Constraint("Vertical", 10))
sketch12.addConstraint(Sketcher.Constraint("Horizontal", 11))
sketch12.addConstraint(Sketcher.Constraint("Coincident", 7, 3, 1, 3))
sketch12.addConstraint(Sketcher.Constraint("Equal", 1, 7))
sketch12.addConstraint(Sketcher.Constraint("Symmetric", 3, 2, 10, 2, -1, 1))
sketch12.addConstraint(Sketcher.Constraint("Symmetric", 1, 1, 6, 2, -2))
sketch12.addConstraint(Sketcher.Constraint("Symmetric", 5, 2, 8, 2, -2))
sketch12.addConstraint(Sketcher.Constraint("PointOnObject", 2, 2, -1))
sketch12.addConstraint(Sketcher.Constraint("Radius", 1, 2.0))
sketch12.addConstraint(Sketcher.Constraint("DistanceX", 3, 2, 3, 1, 1.5))
sketch12.addConstraint(Sketcher.Constraint("DistanceY", 4, 2, 4, 1, 2.5))
sketch12.addConstraint(Sketcher.Constraint("DistanceY", 1, 3, -1, 1, 2.0))
sketch12.addConstraint(Sketcher.Constraint("DistanceX", 3, 2, -1, 1, 3.0))
sketch12.addConstraint(Sketcher.Constraint("DistanceX", 5, 1, 5, 2, 1.05))
pocket8 = doc.addObject("PartDesign::Pocket", "Pocket007")
body.addObject(pocket8)
pocket8.Profile = sketch12
pocket8.Length = 15
doc.recompute()

fillet3 = doc.addObject("PartDesign::Fillet", "Fillet002")
body.addObject(fillet3)
fillet3.Base = (pocket8, edges_at(pocket8, [
    (0, -2.5, -9.45),
    (0, -2.5, -5.55),
    (-1.95, -2.5, -7.5),
    (1.95, -2.5, -7.5),
]))
fillet3.Radius = 0.1

doc.recompute()
